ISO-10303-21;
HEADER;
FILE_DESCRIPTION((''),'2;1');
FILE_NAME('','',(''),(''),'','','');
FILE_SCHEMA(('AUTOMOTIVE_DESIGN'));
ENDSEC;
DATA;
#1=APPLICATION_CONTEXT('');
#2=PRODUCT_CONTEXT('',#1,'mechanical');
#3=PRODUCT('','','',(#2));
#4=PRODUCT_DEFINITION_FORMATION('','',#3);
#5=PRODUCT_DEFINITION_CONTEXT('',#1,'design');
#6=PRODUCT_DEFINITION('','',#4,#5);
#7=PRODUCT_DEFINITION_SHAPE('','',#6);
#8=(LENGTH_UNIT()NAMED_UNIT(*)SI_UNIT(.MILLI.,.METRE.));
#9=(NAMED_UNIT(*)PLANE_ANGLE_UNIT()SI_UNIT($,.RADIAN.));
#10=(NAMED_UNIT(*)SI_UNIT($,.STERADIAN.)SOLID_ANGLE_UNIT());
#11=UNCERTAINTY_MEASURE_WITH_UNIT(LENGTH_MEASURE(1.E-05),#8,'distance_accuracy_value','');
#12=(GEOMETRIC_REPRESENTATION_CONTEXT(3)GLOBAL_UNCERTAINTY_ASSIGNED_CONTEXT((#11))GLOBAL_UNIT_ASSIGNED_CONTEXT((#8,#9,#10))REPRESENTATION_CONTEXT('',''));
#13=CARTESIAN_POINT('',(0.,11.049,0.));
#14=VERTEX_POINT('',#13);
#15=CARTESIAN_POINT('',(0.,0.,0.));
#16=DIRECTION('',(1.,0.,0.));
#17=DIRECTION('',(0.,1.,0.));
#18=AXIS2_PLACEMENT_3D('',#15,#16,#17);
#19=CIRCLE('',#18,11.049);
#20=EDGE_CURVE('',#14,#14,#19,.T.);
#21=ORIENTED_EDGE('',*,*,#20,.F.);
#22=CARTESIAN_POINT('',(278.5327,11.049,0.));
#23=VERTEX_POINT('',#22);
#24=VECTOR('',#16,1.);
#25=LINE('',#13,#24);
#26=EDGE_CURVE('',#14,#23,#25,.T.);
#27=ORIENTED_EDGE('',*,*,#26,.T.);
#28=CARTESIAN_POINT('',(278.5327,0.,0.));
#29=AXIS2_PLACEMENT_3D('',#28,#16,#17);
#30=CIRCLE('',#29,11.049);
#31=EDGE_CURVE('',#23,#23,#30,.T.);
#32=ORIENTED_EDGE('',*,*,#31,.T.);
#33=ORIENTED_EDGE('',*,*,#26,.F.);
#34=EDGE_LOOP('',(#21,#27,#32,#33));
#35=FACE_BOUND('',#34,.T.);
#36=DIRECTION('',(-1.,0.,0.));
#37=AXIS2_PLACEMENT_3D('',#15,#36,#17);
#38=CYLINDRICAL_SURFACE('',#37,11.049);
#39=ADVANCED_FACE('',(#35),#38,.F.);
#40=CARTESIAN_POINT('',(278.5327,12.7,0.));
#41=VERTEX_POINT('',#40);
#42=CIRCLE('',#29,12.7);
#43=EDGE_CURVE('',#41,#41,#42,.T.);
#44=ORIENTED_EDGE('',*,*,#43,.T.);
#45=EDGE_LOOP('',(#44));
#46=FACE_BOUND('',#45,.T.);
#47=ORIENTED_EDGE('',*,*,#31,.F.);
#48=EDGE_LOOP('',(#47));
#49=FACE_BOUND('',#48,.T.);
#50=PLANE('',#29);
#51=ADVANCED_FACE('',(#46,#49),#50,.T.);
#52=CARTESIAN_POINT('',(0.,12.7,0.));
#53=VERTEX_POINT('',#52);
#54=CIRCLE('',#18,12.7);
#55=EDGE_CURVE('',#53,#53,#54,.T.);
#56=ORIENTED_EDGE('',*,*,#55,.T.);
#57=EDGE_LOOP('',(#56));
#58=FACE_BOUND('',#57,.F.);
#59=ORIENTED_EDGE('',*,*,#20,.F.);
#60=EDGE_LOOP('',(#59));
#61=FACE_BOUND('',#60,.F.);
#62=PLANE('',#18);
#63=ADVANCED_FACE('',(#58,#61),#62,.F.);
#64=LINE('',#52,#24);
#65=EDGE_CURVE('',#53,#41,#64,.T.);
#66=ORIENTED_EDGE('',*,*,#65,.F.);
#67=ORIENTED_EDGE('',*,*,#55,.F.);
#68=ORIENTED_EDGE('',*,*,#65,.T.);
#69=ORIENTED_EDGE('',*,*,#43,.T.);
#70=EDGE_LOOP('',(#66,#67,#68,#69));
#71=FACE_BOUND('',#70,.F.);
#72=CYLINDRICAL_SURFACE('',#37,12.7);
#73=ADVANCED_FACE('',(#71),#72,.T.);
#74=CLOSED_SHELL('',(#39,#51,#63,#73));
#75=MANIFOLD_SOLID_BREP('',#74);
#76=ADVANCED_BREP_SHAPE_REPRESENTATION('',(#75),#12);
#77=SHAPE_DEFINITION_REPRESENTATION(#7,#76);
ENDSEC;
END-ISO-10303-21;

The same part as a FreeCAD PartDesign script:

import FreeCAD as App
import Part
import Sketcher
Q = App.Units.Quantity

doc = App.newDocument("Part")
body = doc.addObject("PartDesign::Body", "Body")

sketch1 = body.newObject("Sketcher::SketchObject", "Sketch")
sketch1.AttachmentSupport = (doc.getObject("YZ_Plane"), [""])
sketch1.MapMode = "FlatFace"
sketch1.addGeometry([
    Part.Circle(App.Vector(0, 0, 0), App.Vector(0, 0, 1), 12.7),
    Part.Circle(App.Vector(0, 0, 0), App.Vector(0, 0, 1), 11.049),
], False)
sketch1.addConstraint([
    Sketcher.Constraint("Coincident", 0, 3, -1, 1),
    Sketcher.Constraint("Coincident", 1, 3, -1, 1),
    Sketcher.Constraint("Diameter", 0, Q("1 in")),
    Sketcher.Constraint("Diameter", 1, Q("0.87 in")),
])
pad1 = body.newObject("PartDesign::Pad", "Pad")
pad1.Profile = sketch1
pad1.Length = 278.5327

doc.recompute()
